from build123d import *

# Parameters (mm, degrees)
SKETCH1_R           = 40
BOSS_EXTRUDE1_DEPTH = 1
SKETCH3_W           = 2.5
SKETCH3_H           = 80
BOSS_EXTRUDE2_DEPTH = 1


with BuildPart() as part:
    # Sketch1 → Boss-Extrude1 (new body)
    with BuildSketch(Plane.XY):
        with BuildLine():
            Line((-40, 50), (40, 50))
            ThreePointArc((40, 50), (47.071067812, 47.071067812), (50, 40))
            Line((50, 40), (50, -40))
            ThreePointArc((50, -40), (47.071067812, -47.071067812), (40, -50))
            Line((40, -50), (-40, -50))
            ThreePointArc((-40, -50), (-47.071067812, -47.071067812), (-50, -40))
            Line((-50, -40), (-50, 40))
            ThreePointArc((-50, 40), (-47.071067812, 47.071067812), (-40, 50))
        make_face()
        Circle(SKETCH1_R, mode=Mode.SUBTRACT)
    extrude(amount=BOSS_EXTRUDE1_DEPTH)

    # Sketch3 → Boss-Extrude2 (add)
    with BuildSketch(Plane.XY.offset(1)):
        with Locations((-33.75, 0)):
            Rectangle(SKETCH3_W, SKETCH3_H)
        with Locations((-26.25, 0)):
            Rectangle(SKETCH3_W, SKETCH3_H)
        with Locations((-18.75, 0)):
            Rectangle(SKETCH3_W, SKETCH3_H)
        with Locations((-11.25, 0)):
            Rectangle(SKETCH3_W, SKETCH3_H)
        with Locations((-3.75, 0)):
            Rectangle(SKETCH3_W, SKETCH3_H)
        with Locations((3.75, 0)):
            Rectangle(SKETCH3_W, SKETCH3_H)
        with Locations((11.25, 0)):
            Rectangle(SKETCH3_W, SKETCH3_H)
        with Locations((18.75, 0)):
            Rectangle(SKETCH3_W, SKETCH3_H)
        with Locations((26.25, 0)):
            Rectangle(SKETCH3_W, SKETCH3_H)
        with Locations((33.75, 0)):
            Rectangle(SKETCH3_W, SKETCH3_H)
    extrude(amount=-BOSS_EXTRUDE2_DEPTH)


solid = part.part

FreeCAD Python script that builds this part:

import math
import FreeCAD as App
import Part
import Sketcher

V = App.Vector


def add_polygon(sketch, points):
    """Adds a closed chain of lines whose ends are joined by coincident constraints."""
    first, n = sketch.GeometryCount, len(points)
    for a, b in zip(points, points[1:] + points[:1]):
        sketch.addGeometry(Part.LineSegment(App.Vector(*a, 0), App.Vector(*b, 0)), False)
    for i in range(n):
        sketch.addConstraint(Sketcher.Constraint("Coincident", first + i, 2, first + (i + 1) % n, 1))

doc = App.newDocument("Part")
body = doc.addObject("PartDesign::Body", "Body")

sketch1 = body.newObject("Sketcher::SketchObject", "Sketch")
sketch1.AttachmentSupport = (doc.getObject("XY_Plane"), [""])
sketch1.MapMode = "FlatFace"
sketch1.addGeometry([
    Part.LineSegment(V(40, 50, 0), V(-40, 50, 0)),
    Part.ArcOfCircle(Part.Circle(V(-40, 40, 0), V(0, 0, 1), 10), math.radians(90), math.radians(180)),
    Part.LineSegment(V(-50, 40, 0), V(-50, -40, 0)),
    Part.ArcOfCircle(Part.Circle(V(-40, -40, 0), V(0, 0, 1), 10), math.radians(180), math.radians(270)),
    Part.LineSegment(V(-40, -50, 0), V(40, -50, 0)),
    Part.ArcOfCircle(Part.Circle(V(40, -40, 0), V(0, 0, 1), 10), math.radians(-90), math.radians(0)),
    Part.LineSegment(V(50, -40, 0), V(50, 40, 0)),
    Part.ArcOfCircle(Part.Circle(V(40, 40, 0), V(0, 0, 1), 10), math.radians(0), math.radians(90)),
    Part.Circle(V(0, 0, 0), V(0, 0, 1), 40),
], False)
sketch1.addConstraint([
    Sketcher.Constraint("Tangent", 0, 2, 1, 1),
    Sketcher.Constraint("Tangent", 1, 2, 2, 1),
    Sketcher.Constraint("Tangent", 2, 2, 3, 1),
    Sketcher.Constraint("Tangent", 3, 2, 4, 1),
    Sketcher.Constraint("Tangent", 4, 2, 5, 1),
    Sketcher.Constraint("Tangent", 5, 2, 6, 1),
    Sketcher.Constraint("Tangent", 6, 2, 7, 1),
    Sketcher.Constraint("Tangent", 7, 2, 0, 1),
    Sketcher.Constraint("Horizontal", 0),
    Sketcher.Constraint("Vertical", 2),
    Sketcher.Constraint("Horizontal", 4),
    Sketcher.Constraint("Vertical", 6),
    Sketcher.Constraint("Coincident", 8, 3, -1, 1),
    Sketcher.Constraint("Equal", 1, 3),
    Sketcher.Constraint("Equal", 3, 5),
    Sketcher.Constraint("Equal", 5, 7),
    Sketcher.Constraint("Symmetric", 1, 3, 5, 3, -1, 1),
    Sketcher.Constraint("Equal", 4, 2),
    Sketcher.Constraint("Diameter", 8, 80.0),
    Sketcher.Constraint("Radius", 1, 10.0),
    Sketcher.Constraint("DistanceX", 0, 2, 0, 1, 80.0),
])
pad1 = body.newObject("PartDesign::Pad", "Pad")
pad1.Profile = sketch1
pad1.Length = 1

sketch2 = body.newObject("Sketcher::SketchObject", "Sketch001")
sketch2.AttachmentSupport = (doc.getObject("XY_Plane"), [""])
sketch2.MapMode = "FlatFace"
sketch2.AttachmentOffset = App.Placement(V(0, 0, 1), App.Rotation())
add_polygon(sketch2, [(-35, 40), (-35, -40), (-32.5, -40), (-32.5, 40)])
add_polygon(sketch2, [(-27.5, 40), (-27.5, -40), (-25, -40), (-25, 40)])
add_polygon(sketch2, [(-20, 40), (-20, -40), (-17.5, -40), (-17.5, 40)])
add_polygon(sketch2, [(-12.5, 40), (-12.5, -40), (-10, -40), (-10, 40)])
add_polygon(sketch2, [(-5, 40), (-5, -40), (-2.5, -40), (-2.5, 40)])
add_polygon(sketch2, [(2.5, 40), (2.5, -40), (5, -40), (5, 40)])
add_polygon(sketch2, [(10, 40), (10, -40), (12.5, -40), (12.5, 40)])
add_polygon(sketch2, [(17.5, 40), (17.5, -40), (20, -40), (20, 40)])
add_polygon(sketch2, [(25, 40), (25, -40), (27.5, -40), (27.5, 40)])
add_polygon(sketch2, [(32.5, 40), (32.5, -40), (35, -40), (35, 40)])
sketch2.addConstraint([
    Sketcher.Constraint("Vertical", 0),
    Sketcher.Constraint("Horizontal", 1),
    Sketcher.Constraint("Vertical", 2),
    Sketcher.Constraint("Horizontal", 3),
    Sketcher.Constraint("Vertical", 4),
    Sketcher.Constraint("Horizontal", 5),
    Sketcher.Constraint("Vertical", 6),
    Sketcher.Constraint("Horizontal", 7),
    Sketcher.Constraint("Vertical", 8),
    Sketcher.Constraint("Horizontal", 9),
    Sketcher.Constraint("Vertical", 10),
    Sketcher.Constraint("Horizontal", 11),
    Sketcher.Constraint("Vertical", 12),
    Sketcher.Constraint("Horizontal", 13),
    Sketcher.Constraint("Vertical", 14),
    Sketcher.Constraint("Horizontal", 15),
    Sketcher.Constraint("Vertical", 16),
    Sketcher.Constraint("Horizontal", 17),
    Sketcher.Constraint("Vertical", 18),
    Sketcher.Constraint("Horizontal", 19),
    Sketcher.Constraint("Vertical", 20),
    Sketcher.Constraint("Horizontal", 21),
    Sketcher.Constraint("Vertical", 22),
    Sketcher.Constraint("Horizontal", 23),
    Sketcher.Constraint("Vertical", 24),
    Sketcher.Constraint("Horizontal", 25),
    Sketcher.Constraint("Vertical", 26),
    Sketcher.Constraint("Horizontal", 27),
    Sketcher.Constraint("Vertical", 28),
    Sketcher.Constraint("Horizontal", 29),
    Sketcher.Constraint("Vertical", 30),
    Sketcher.Constraint("Horizontal", 31),
    Sketcher.Constraint("Vertical", 32),
    Sketcher.Constraint("Horizontal", 33),
    Sketcher.Constraint("Vertical", 34),
    Sketcher.Constraint("Horizontal", 35),
    Sketcher.Constraint("Vertical", 36),
    Sketcher.Constraint("Horizontal", 37),
    Sketcher.Constraint("Vertical", 38),
    Sketcher.Constraint("Horizontal", 39),
    Sketcher.Constraint("Symmetric", 18, 2, 20, 2, -1, 1),
    Sketcher.Constraint("Symmetric", 16, 2, 22, 2, -1, 1),
    Sketcher.Constraint("Symmetric", 14, 2, 24, 2, -1, 1),
    Sketcher.Constraint("Symmetric", 12, 2, 26, 2, -1, 1),
    Sketcher.Constraint("Symmetric", 10, 2, 28, 2, -1, 1),
    Sketcher.Constraint("Symmetric", 8, 2, 30, 2, -1, 1),
    Sketcher.Constraint("Symmetric", 6, 2, 32, 2, -1, 1),
    Sketcher.Constraint("Symmetric", 4, 2, 34, 2, -1, 1),
    Sketcher.Constraint("Symmetric", 2, 2, 36, 2, -1, 1),
    Sketcher.Constraint("Symmetric", 0, 2, 38, 2, -1, 1),
    Sketcher.Constraint("Horizontal", 1, 2, 4, 2),
    Sketcher.Constraint("Horizontal", 3, 2, 6, 2),
    Sketcher.Constraint("Horizontal", 5, 2, 8, 2),
    Sketcher.Constraint("Horizontal", 7, 2, 10, 2),
    Sketcher.Constraint("Horizontal", 9, 2, 12, 2),
    Sketcher.Constraint("Horizontal", 11, 2, 14, 2),
    Sketcher.Constraint("Horizontal", 13, 2, 16, 2),
    Sketcher.Constraint("Horizontal", 15, 2, 18, 2),
    Sketcher.Constraint("Horizontal", 17, 2, 20, 2),
    Sketcher.Constraint("Equal", 3, 5),
    Sketcher.Constraint("Equal", 7, 9),
    Sketcher.Constraint("Equal", 11, 13),
    Sketcher.Constraint("Equal", 15, 17),
    Sketcher.Constraint("DistanceY", 0, 2, 0, 1, 80.0),
    Sketcher.Constraint("DistanceX", 1, 1, 1, 2, 2.5),
    Sketcher.Constraint("DistanceX", 0, 2, -1, 1, 35.0),
    Sketcher.Constraint("DistanceX", 5, 2, -1, 1, 25.0),
    Sketcher.Constraint("DistanceX", 8, 2, -1, 1, 20.0),
    Sketcher.Constraint("DistanceX", 13, 2, -1, 1, 10.0),
    Sketcher.Constraint("DistanceX", 16, 2, -1, 1, 5.0),
])
pad2 = body.newObject("PartDesign::Pad", "Pad001")
pad2.Profile = sketch2
pad2.Length = 1
pad2.Reversed = True

doc.recompute()
